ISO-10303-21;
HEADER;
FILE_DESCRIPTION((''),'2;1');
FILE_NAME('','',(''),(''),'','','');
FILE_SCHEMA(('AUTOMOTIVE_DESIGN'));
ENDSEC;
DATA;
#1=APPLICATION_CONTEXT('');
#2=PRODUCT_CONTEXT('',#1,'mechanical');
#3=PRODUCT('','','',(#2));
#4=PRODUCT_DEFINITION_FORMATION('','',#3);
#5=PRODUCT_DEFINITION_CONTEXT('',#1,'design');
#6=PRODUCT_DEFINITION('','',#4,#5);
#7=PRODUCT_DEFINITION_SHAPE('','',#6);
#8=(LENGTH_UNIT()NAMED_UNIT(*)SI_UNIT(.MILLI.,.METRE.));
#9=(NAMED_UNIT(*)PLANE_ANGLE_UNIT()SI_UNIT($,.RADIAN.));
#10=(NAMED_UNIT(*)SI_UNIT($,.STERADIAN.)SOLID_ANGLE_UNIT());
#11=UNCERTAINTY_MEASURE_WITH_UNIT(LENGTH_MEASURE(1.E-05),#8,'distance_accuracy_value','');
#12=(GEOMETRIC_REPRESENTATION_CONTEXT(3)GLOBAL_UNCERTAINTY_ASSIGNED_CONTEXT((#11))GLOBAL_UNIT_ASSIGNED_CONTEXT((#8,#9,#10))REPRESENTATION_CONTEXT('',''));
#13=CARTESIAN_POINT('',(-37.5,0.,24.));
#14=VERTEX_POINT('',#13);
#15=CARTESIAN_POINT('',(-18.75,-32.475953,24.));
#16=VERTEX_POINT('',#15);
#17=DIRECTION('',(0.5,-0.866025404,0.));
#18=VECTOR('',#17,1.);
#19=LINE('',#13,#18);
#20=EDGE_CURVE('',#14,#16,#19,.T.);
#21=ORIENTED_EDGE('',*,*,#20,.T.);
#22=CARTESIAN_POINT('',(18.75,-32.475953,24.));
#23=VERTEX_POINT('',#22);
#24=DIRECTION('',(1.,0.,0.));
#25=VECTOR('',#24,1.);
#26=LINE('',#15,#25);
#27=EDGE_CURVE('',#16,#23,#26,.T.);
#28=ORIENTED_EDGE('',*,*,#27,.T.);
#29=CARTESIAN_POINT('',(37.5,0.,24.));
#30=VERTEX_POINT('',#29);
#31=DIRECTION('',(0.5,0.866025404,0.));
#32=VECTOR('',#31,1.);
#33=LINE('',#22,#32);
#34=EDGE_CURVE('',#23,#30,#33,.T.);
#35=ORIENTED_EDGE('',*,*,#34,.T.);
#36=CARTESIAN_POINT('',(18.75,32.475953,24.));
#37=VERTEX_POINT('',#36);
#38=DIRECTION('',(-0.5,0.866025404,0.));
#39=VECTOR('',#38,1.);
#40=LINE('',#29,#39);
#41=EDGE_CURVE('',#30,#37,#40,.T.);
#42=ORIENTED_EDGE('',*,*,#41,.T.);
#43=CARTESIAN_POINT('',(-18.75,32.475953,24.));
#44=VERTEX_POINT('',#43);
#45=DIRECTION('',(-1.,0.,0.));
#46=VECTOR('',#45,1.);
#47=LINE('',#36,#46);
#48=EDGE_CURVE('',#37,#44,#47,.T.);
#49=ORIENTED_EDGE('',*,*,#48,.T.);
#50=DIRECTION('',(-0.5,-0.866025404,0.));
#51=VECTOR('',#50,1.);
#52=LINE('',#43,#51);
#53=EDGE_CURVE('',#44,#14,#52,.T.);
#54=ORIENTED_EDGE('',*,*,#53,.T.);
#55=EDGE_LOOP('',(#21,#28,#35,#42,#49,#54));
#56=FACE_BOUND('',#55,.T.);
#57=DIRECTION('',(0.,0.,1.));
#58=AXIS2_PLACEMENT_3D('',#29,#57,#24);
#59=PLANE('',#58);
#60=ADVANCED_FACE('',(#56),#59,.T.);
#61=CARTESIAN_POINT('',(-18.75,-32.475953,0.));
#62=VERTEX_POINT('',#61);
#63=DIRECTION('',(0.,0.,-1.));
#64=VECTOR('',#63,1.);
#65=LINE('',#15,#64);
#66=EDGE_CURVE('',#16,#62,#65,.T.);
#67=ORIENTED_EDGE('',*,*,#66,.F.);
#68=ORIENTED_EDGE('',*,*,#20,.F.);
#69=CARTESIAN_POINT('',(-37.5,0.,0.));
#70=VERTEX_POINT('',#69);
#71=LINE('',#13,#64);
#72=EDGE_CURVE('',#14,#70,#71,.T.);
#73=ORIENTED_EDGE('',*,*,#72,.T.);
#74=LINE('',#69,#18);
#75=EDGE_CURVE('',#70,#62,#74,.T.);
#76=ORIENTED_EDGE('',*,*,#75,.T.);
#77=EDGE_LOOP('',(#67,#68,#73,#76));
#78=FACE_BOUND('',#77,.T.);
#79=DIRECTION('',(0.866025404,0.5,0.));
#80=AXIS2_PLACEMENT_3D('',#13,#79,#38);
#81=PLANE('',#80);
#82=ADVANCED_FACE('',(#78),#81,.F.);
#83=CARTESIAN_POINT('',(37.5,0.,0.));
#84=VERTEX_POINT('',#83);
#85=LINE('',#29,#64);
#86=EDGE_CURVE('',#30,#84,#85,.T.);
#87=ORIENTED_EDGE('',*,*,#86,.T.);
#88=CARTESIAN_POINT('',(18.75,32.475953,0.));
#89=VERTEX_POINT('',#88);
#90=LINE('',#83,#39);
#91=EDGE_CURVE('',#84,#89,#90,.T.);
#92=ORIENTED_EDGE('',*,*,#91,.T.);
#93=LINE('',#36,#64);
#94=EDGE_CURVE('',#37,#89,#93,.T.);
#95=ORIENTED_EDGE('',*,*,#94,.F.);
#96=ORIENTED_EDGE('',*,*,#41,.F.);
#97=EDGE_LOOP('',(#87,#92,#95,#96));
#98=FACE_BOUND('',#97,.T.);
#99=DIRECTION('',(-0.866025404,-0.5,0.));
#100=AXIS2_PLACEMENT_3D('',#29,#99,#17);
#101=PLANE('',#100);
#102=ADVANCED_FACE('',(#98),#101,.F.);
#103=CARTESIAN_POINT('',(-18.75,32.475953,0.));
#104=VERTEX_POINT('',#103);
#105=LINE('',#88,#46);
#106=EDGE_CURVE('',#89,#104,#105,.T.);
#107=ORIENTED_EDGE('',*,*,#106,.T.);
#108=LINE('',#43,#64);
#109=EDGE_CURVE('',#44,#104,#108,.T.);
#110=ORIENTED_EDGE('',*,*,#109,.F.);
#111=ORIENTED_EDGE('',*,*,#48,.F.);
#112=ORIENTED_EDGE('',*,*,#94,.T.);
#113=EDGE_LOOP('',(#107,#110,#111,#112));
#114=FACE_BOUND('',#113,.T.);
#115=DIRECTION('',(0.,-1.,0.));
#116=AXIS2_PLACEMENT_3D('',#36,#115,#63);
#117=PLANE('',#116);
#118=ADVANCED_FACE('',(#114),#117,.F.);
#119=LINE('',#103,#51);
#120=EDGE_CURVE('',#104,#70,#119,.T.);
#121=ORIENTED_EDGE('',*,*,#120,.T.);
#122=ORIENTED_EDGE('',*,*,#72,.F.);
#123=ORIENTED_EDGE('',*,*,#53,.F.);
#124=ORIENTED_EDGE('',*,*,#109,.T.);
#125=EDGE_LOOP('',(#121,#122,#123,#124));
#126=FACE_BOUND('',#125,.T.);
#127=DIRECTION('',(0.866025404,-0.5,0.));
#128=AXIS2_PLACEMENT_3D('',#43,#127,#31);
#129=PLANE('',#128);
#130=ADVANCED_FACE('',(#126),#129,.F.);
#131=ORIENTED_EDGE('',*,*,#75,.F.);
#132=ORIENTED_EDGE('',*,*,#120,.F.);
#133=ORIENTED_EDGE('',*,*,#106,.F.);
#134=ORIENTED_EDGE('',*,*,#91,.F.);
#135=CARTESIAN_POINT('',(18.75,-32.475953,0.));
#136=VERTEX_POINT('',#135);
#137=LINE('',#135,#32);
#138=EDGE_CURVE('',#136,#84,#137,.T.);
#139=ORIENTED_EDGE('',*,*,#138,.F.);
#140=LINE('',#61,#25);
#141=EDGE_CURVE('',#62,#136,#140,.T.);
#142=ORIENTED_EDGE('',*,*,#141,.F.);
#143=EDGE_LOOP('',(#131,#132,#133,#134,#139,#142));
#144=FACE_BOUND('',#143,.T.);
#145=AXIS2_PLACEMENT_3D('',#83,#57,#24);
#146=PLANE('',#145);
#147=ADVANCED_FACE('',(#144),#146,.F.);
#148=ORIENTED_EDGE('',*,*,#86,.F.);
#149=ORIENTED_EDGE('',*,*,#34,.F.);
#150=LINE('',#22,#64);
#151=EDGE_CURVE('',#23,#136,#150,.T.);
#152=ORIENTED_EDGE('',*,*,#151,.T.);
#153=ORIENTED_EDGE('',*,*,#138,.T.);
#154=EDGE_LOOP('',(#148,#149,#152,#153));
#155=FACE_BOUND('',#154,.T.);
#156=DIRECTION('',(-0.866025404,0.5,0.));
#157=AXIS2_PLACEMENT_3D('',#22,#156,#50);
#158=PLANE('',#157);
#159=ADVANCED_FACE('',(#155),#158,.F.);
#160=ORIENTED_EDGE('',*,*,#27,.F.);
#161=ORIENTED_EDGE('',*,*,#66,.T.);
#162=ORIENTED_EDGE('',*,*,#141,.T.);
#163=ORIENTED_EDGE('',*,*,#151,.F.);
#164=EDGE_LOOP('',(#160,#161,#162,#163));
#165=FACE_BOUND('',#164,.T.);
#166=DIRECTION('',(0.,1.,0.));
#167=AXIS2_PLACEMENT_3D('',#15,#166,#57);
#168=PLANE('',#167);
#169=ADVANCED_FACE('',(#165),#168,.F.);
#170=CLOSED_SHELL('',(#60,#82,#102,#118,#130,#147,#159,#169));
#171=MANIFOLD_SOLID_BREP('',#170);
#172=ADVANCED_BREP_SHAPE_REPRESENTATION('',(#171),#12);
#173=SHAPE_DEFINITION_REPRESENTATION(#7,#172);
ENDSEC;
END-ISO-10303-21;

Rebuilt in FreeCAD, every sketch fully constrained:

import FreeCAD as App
import Part
import Sketcher
from FreeCAD import Vector
Q = App.Units.Quantity

doc = App.newDocument("Part")
body = doc.addObject("PartDesign::Body", "Body")

# Sketch on XY plane
sketch1 = doc.addObject("Sketcher::SketchObject", "Sketch")
body.addObject(sketch1)
sketch1.AttachmentSupport = (doc.XY_Plane, [""])
sketch1.MapMode = "FlatFace"
sketch1.addGeometry([
    Part.LineSegment(Vector(38, 0, 0), Vector(19, 32, 0)),  # 0
    Part.LineSegment(Vector(19, 32, 0), Vector(-19, 32, 0)),  # 1
    Part.LineSegment(Vector(-19, 32, 0), Vector(-38, 0, 0)),  # 2
    Part.LineSegment(Vector(-38, 0, 0), Vector(-19, -32, 0)),  # 3
    Part.LineSegment(Vector(-19, -32, 0), Vector(19, -32, 0)),  # 4
    Part.LineSegment(Vector(19, -32, 0), Vector(38, 0, 0)),  # 5
], False)
sketch1.addConstraint([
    Sketcher.Constraint("Coincident", 0, 2, 1, 1),
    Sketcher.Constraint("Coincident", 1, 2, 2, 1),
    Sketcher.Constraint("Coincident", 2, 2, 3, 1),
    Sketcher.Constraint("Coincident", 3, 2, 4, 1),
    Sketcher.Constraint("Coincident", 4, 2, 5, 1),
    Sketcher.Constraint("Coincident", 5, 2, 0, 1),
    Sketcher.Constraint("Horizontal", 1),
    Sketcher.Constraint("Horizontal", 4),
    Sketcher.Constraint("Symmetric", 0, 2, 3, 2, -1, 1),
    Sketcher.Constraint("Symmetric", 2, 2, 5, 2, -1, 1),
    Sketcher.Constraint("PointOnObject", 2, 2, -1),
    Sketcher.Constraint("Parallel", 2, 5),
    Sketcher.Constraint("Vertical", 1, 2, 3, 2),
    Sketcher.Constraint("Angle", 0, Q("120 deg")),
    Sketcher.Constraint("DistanceX", 1, 2, 1, 1, Q("37.5 mm")),
    Sketcher.Constraint("DistanceX", 2, 2, 5, 2, Q("75 mm")),
])
pad1 = doc.addObject("PartDesign::Pad", "Pad")
body.addObject(pad1)
pad1.Profile = sketch1
pad1.Length = 24

doc.recompute()
